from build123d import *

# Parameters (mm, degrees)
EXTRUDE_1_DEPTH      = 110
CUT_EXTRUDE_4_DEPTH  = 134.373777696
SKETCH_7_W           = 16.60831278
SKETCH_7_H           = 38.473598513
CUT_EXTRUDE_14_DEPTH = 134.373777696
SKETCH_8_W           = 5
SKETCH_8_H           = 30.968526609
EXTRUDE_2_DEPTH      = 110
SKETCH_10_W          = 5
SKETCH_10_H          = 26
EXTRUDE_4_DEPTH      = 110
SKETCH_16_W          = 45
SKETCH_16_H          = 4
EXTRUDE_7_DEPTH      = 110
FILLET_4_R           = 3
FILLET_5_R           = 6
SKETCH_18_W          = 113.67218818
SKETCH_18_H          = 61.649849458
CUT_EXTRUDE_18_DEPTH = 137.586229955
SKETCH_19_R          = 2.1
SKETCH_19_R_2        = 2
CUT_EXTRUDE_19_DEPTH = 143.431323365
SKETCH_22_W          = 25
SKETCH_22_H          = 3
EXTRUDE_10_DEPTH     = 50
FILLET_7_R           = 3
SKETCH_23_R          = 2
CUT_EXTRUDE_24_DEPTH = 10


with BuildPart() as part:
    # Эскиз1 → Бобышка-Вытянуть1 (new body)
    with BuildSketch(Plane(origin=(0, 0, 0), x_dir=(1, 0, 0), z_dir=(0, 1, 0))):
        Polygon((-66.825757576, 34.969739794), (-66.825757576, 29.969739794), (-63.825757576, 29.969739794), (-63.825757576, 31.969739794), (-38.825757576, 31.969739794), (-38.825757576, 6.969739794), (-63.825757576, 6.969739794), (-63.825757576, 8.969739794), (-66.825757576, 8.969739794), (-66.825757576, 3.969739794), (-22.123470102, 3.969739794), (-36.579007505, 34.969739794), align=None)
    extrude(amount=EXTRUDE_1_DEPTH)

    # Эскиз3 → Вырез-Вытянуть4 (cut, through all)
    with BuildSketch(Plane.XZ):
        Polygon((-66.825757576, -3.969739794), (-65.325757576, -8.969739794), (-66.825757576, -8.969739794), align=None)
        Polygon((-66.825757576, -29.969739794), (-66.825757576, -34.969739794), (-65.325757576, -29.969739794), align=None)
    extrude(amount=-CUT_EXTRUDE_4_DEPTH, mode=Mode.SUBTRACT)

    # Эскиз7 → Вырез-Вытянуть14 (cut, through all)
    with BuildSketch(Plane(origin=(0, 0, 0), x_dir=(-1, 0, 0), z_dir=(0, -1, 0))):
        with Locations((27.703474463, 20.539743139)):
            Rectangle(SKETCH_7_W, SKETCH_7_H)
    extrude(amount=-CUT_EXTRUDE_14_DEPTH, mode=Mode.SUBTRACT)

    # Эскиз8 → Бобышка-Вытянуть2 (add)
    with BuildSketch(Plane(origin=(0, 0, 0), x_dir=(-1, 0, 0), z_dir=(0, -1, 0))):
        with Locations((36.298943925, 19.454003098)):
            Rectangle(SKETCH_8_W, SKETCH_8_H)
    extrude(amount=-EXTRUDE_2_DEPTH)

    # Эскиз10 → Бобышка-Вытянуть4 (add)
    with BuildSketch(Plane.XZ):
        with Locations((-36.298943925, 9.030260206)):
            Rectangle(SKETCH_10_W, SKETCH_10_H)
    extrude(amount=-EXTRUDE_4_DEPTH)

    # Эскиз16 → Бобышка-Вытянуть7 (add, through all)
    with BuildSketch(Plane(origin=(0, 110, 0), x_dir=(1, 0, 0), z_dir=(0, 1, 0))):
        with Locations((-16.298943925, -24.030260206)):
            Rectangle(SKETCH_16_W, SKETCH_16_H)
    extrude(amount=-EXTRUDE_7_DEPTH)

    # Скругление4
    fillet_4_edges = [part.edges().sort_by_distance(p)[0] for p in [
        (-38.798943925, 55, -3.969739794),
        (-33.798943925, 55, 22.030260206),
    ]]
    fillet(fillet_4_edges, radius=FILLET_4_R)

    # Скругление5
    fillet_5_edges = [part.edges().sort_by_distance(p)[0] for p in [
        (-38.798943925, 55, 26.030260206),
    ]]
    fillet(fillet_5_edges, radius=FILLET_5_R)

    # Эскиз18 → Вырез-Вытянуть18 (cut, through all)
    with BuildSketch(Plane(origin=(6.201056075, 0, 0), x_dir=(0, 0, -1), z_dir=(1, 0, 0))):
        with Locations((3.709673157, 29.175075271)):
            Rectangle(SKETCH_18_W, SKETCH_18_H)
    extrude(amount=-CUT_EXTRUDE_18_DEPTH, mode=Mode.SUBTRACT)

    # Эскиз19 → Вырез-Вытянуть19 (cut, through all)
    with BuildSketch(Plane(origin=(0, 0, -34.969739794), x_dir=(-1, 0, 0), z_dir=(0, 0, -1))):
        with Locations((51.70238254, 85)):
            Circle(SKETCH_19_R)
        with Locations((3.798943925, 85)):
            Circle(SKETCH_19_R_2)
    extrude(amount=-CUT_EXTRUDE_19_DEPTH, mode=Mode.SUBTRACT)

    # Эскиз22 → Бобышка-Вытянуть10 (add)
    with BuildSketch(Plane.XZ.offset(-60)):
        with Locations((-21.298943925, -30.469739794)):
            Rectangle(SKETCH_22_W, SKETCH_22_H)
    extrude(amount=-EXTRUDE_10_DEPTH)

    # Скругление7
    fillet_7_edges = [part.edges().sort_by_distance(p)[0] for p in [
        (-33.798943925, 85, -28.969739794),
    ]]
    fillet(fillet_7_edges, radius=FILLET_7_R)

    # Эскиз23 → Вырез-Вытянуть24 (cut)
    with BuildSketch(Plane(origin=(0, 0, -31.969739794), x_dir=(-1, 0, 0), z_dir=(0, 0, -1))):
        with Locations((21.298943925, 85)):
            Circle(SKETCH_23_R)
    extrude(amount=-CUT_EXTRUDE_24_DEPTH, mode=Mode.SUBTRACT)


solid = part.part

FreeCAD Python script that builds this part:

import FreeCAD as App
import Part
import Sketcher
from FreeCAD import Vector
Q = App.Units.Quantity


def edges_at(feature, points):
    """Names of the edges that pass closest to the given points."""
    edges = feature.Shape.Edges
    near = lambda p: min(range(len(edges)), key=lambda i: edges[i].distToShape(Part.Vertex(*p))[0])
    return sorted({f"Edge{near(p) + 1}" for p in points})

doc = App.newDocument("Part")
body = doc.addObject("PartDesign::Body", "Body")

sketch1 = body.newObject("Sketcher::SketchObject", "Sketch")
sketch1.AttachmentSupport = (doc.getObject("XZ_Plane"), [""])
sketch1.MapMode = "FlatFace"
sketch1.addGeometry(Part.LineSegment(Vector(-66.8, -35, 0), Vector(-66.8, -30, 0)), False)
sketch1.addGeometry(Part.LineSegment(Vector(-66.8, -30, 0), Vector(-63.8, -30, 0)), False)
sketch1.addGeometry(Part.LineSegment(Vector(-63.8, -30, 0), Vector(-63.8, -32, 0)), False)
sketch1.addGeometry(Part.LineSegment(Vector(-63.8, -32, 0), Vector(-38.8, -32, 0)), False)
sketch1.addGeometry(Part.LineSegment(Vector(-38.8, -32, 0), Vector(-38.8, -7, 0)), False)
sketch1.addGeometry(Part.LineSegment(Vector(-38.8, -7, 0), Vector(-63.8, -7, 0)), False)
sketch1.addGeometry(Part.LineSegment(Vector(-63.8, -7, 0), Vector(-63.8, -9, 0)), False)
sketch1.addGeometry(Part.LineSegment(Vector(-63.8, -9, 0), Vector(-66.8, -9, 0)), False)
sketch1.addGeometry(Part.LineSegment(Vector(-66.8, -9, 0), Vector(-66.8, -4, 0)), False)
sketch1.addGeometry(Part.LineSegment(Vector(-66.8, -4, 0), Vector(-22.1, -4, 0)), False)
sketch1.addGeometry(Part.LineSegment(Vector(-22.1, -4, 0), Vector(-36.6, -35, 0)), False)
sketch1.addGeometry(Part.LineSegment(Vector(-36.6, -35, 0), Vector(-66.8, -35, 0)), False)
sketch1.addConstraint(Sketcher.Constraint("Coincident", 0, 2, 1, 1))
sketch1.addConstraint(Sketcher.Constraint("Coincident", 1, 2, 2, 1))
sketch1.addConstraint(Sketcher.Constraint("Coincident", 2, 2, 3, 1))
sketch1.addConstraint(Sketcher.Constraint("Coincident", 3, 2, 4, 1))
sketch1.addConstraint(Sketcher.Constraint("Coincident", 4, 2, 5, 1))
sketch1.addConstraint(Sketcher.Constraint("Coincident", 5, 2, 6, 1))
sketch1.addConstraint(Sketcher.Constraint("Coincident", 6, 2, 7, 1))
sketch1.addConstraint(Sketcher.Constraint("Coincident", 7, 2, 8, 1))
sketch1.addConstraint(Sketcher.Constraint("Coincident", 8, 2, 9, 1))
sketch1.addConstraint(Sketcher.Constraint("Coincident", 9, 2, 10, 1))
sketch1.addConstraint(Sketcher.Constraint("Coincident", 10, 2, 11, 1))
sketch1.addConstraint(Sketcher.Constraint("Coincident", 11, 2, 0, 1))
sketch1.addConstraint(Sketcher.Constraint("Vertical", 0))
sketch1.addConstraint(Sketcher.Constraint("Horizontal", 1))
sketch1.addConstraint(Sketcher.Constraint("Vertical", 2))
sketch1.addConstraint(Sketcher.Constraint("Horizontal", 3))
sketch1.addConstraint(Sketcher.Constraint("Vertical", 4))
sketch1.addConstraint(Sketcher.Constraint("Horizontal", 5))
sketch1.addConstraint(Sketcher.Constraint("Vertical", 6))
sketch1.addConstraint(Sketcher.Constraint("Horizontal", 7))
sketch1.addConstraint(Sketcher.Constraint("Vertical", 8))
sketch1.addConstraint(Sketcher.Constraint("Horizontal", 9))
sketch1.addConstraint(Sketcher.Constraint("Horizontal", 11))
sketch1.addConstraint(Sketcher.Constraint("Vertical", 2, 2, 5, 2))
sketch1.addConstraint(Sketcher.Constraint("Vertical", 0, 2, 7, 2))
sketch1.addConstraint(Sketcher.Constraint("Equal", 5, 4))
sketch1.addConstraint(Sketcher.Constraint("Equal", 2, 6))
sketch1.addConstraint(Sketcher.Constraint("Equal", 0, 8))
sketch1.addConstraint(Sketcher.Constraint("DistanceX", 1, 1, 1, 2, 3.0))
sketch1.addConstraint(Sketcher.Constraint("DistanceX", 3, 1, 3, 2, 25.0))
sketch1.addConstraint(Sketcher.Constraint("DistanceY", 0, 1, 0, 2, 5.0))
sketch1.addConstraint(Sketcher.Constraint("DistanceY", 2, 2, 2, 1, 2.0))
sketch1.addConstraint(Sketcher.Constraint("Angle", 10, Q("-115 deg")))
sketch1.addConstraint(Sketcher.Constraint("DistanceX", 11, 2, 11, 1, 30.24675))
sketch1.addConstraint(Sketcher.Constraint("DistanceY", 0, 2, -1, 1, 29.96974))
sketch1.addConstraint(Sketcher.Constraint("DistanceX", 9, 2, -1, 1, 22.12347))
pad1 = body.newObject("PartDesign::Pad", "Pad")
pad1.Profile = sketch1
pad1.Length = 110
pad1.Reversed = True

sketch2 = body.newObject("Sketcher::SketchObject", "Sketch001")
sketch2.AttachmentSupport = (doc.getObject("XZ_Plane"), [""])
sketch2.MapMode = "FlatFace"
sketch2.addGeometry(Part.LineSegment(Vector(-65.3, -9, 0), Vector(-66.8, -4, 0)), False)
sketch2.addGeometry(Part.LineSegment(Vector(-66.8, -4, 0), Vector(-66.8, -9, 0)), False)
sketch2.addGeometry(Part.LineSegment(Vector(-66.8, -9, 0), Vector(-65.3, -9, 0)), False)
sketch2.addGeometry(Part.LineSegment(Vector(-66.8, -30, 0), Vector(-66.8, -35, 0)), False)
sketch2.addGeometry(Part.LineSegment(Vector(-66.8, -35, 0), Vector(-65.3, -30, 0)), False)
sketch2.addGeometry(Part.LineSegment(Vector(-65.3, -30, 0), Vector(-66.8, -30, 0)), False)
sketch2.addConstraint(Sketcher.Constraint("Coincident", 0, 2, 1, 1))
sketch2.addConstraint(Sketcher.Constraint("Coincident", 1, 2, 2, 1))
sketch2.addConstraint(Sketcher.Constraint("Coincident", 2, 2, 0, 1))
sketch2.addConstraint(Sketcher.Constraint("Coincident", 3, 2, 4, 1))
sketch2.addConstraint(Sketcher.Constraint("Coincident", 4, 2, 5, 1))
sketch2.addConstraint(Sketcher.Constraint("Coincident", 5, 2, 3, 1))
sketch2.addConstraint(Sketcher.Constraint("Vertical", 1))
sketch2.addConstraint(Sketcher.Constraint("Horizontal", 2))
sketch2.addConstraint(Sketcher.Constraint("Vertical", 3))
sketch2.addConstraint(Sketcher.Constraint("Horizontal", 5))
sketch2.addConstraint(Sketcher.Constraint("Vertical", 1, 2, 3, 2))
sketch2.addConstraint(Sketcher.Constraint("Vertical", 2, 2, 4, 2))
sketch2.addConstraint(Sketcher.Constraint("Equal", 1, 3))
sketch2.addConstraint(Sketcher.Constraint("DistanceY", 1, 2, 1, 1, 5.0))
sketch2.addConstraint(Sketcher.Constraint("DistanceX", 2, 1, 2, 2, 1.5))
sketch2.addConstraint(Sketcher.Constraint("DistanceY", 3, 2, 1, 2, 26.0))
sketch2.addConstraint(Sketcher.Constraint("DistanceY", 0, 2, -1, 1, 3.96974))
sketch2.addConstraint(Sketcher.Constraint("DistanceX", 0, 2, -1, 1, 66.825758))
pocket1 = body.newObject("PartDesign::Pocket", "Pocket")
pocket1.Profile = sketch2
pocket1.Type = "ThroughAll"

sketch3 = body.newObject("Sketcher::SketchObject", "Sketch002")
sketch3.AttachmentSupport = (doc.getObject("XZ_Plane"), [""])
sketch3.MapMode = "FlatFace"
sketch3.addGeometry(Part.LineSegment(Vector(-19, -40, 0), Vector(-19, -1, 0)), False)
sketch3.addGeometry(Part.LineSegment(Vector(-19, -1, 0), Vector(-36, -1, 0)), False)
sketch3.addGeometry(Part.LineSegment(Vector(-36, -1, 0), Vector(-36, -40, 0)), False)
sketch3.addGeometry(Part.LineSegment(Vector(-36, -40, 0), Vector(-19, -40, 0)), False)
sketch3.addConstraint(Sketcher.Constraint("Coincident", 0, 2, 1, 1))
sketch3.addConstraint(Sketcher.Constraint("Coincident", 1, 2, 2, 1))
sketch3.addConstraint(Sketcher.Constraint("Coincident", 2, 2, 3, 1))
sketch3.addConstraint(Sketcher.Constraint("Coincident", 3, 2, 0, 1))
sketch3.addConstraint(Sketcher.Constraint("Vertical", 0))
sketch3.addConstraint(Sketcher.Constraint("Horizontal", 1))
sketch3.addConstraint(Sketcher.Constraint("Vertical", 2))
sketch3.addConstraint(Sketcher.Constraint("Horizontal", 3))
sketch3.addConstraint(Sketcher.Constraint("DistanceY", 0, 1, 0, 2, 38.473599))
sketch3.addConstraint(Sketcher.Constraint("DistanceX", 1, 2, 1, 1, 16.608313))
sketch3.addConstraint(Sketcher.Constraint("DistanceX", 0, 2, -1, 1, 19.399318))
sketch3.addConstraint(Sketcher.Constraint("DistanceY", 0, 2, -1, 1, 1.302944))
pocket2 = body.newObject("PartDesign::Pocket", "Pocket001")
pocket2.Profile = sketch3
pocket2.Type = "ThroughAll"

sketch4 = body.newObject("Sketcher::SketchObject", "Sketch003")
sketch4.AttachmentSupport = (doc.getObject("XZ_Plane"), [""])
sketch4.MapMode = "FlatFace"
sketch4.addGeometry(Part.LineSegment(Vector(-34, -35, 0), Vector(-34, -4, 0)), False)
sketch4.addGeometry(Part.LineSegment(Vector(-34, -4, 0), Vector(-39, -4, 0)), False)
sketch4.addGeometry(Part.LineSegment(Vector(-39, -4, 0), Vector(-39, -35, 0)), False)
sketch4.addGeometry(Part.LineSegment(Vector(-39, -35, 0), Vector(-34, -35, 0)), False)
sketch4.addConstraint(Sketcher.Constraint("Coincident", 0, 2, 1, 1))
sketch4.addConstraint(Sketcher.Constraint("Coincident", 1, 2, 2, 1))
sketch4.addConstraint(Sketcher.Constraint("Coincident", 2, 2, 3, 1))
sketch4.addConstraint(Sketcher.Constraint("Coincident", 3, 2, 0, 1))
sketch4.addConstraint(Sketcher.Constraint("Vertical", 0))
sketch4.addConstraint(Sketcher.Constraint("Horizontal", 1))
sketch4.addConstraint(Sketcher.Constraint("Vertical", 2))
sketch4.addConstraint(Sketcher.Constraint("Horizontal", 3))
sketch4.addConstraint(Sketcher.Constraint("DistanceX", 1, 2, 1, 1, 5.0))
sketch4.addConstraint(Sketcher.Constraint("DistanceY", 0, 1, 0, 2, 30.968527))
sketch4.addConstraint(Sketcher.Constraint("DistanceY", 0, 2, -1, 1, 3.96974))
sketch4.addConstraint(Sketcher.Constraint("DistanceX", 0, 2, -1, 1, 33.798944))
pad2 = body.newObject("PartDesign::Pad", "Pad001")
pad2.Profile = sketch4
pad2.Length = 110
pad2.Reversed = True

sketch5 = body.newObject("Sketcher::SketchObject", "Sketch004")
sketch5.AttachmentSupport = (doc.getObject("XZ_Plane"), [""])
sketch5.MapMode = "FlatFace"
sketch5.addGeometry(Part.LineSegment(Vector(-39, 22, 0), Vector(-39, -4, 0)), False)
sketch5.addGeometry(Part.LineSegment(Vector(-39, -4, 0), Vector(-34, -4, 0)), False)
sketch5.addGeometry(Part.LineSegment(Vector(-34, -4, 0), Vector(-34, 22, 0)), False)
sketch5.addGeometry(Part.LineSegment(Vector(-34, 22, 0), Vector(-39, 22, 0)), False)
sketch5.addConstraint(Sketcher.Constraint("Coincident", 0, 2, 1, 1))
sketch5.addConstraint(Sketcher.Constraint("Coincident", 1, 2, 2, 1))
sketch5.addConstraint(Sketcher.Constraint("Coincident", 2, 2, 3, 1))
sketch5.addConstraint(Sketcher.Constraint("Coincident", 3, 2, 0, 1))
sketch5.addConstraint(Sketcher.Constraint("Vertical", 0))
sketch5.addConstraint(Sketcher.Constraint("Horizontal", 1))
sketch5.addConstraint(Sketcher.Constraint("Vertical", 2))
sketch5.addConstraint(Sketcher.Constraint("Horizontal", 3))
sketch5.addConstraint(Sketcher.Constraint("DistanceX", 1, 1, 1, 2, 5.0))
sketch5.addConstraint(Sketcher.Constraint("DistanceY", 0, 2, 0, 1, 26.0))
sketch5.addConstraint(Sketcher.Constraint("DistanceY", 0, 2, -1, 1, 3.96974))
sketch5.addConstraint(Sketcher.Constraint("DistanceX", 0, 2, -1, 1, 38.798944))
pad3 = body.newObject("PartDesign::Pad", "Pad002")
pad3.Profile = sketch5
pad3.Length = 110
pad3.Reversed = True

sketch6 = body.newObject("Sketcher::SketchObject", "Sketch005")
sketch6.AttachmentSupport = (doc.getObject("XZ_Plane"), [""])
sketch6.MapMode = "FlatFace"
sketch6.AttachmentOffset = App.Placement(Vector(0, 0, -110), App.Rotation())
sketch6.addGeometry(Part.LineSegment(Vector(-38.8, 22, 0), Vector(-38.8, 26, 0)), False)
sketch6.addGeometry(Part.LineSegment(Vector(-38.8, 26, 0), Vector(6.2, 26, 0)), False)
sketch6.addGeometry(Part.LineSegment(Vector(6.2, 26, 0), Vector(6.2, 22, 0)), False)
sketch6.addGeometry(Part.LineSegment(Vector(6.2, 22, 0), Vector(-38.8, 22, 0)), False)
sketch6.addConstraint(Sketcher.Constraint("Coincident", 0, 2, 1, 1))
sketch6.addConstraint(Sketcher.Constraint("Coincident", 1, 2, 2, 1))
sketch6.addConstraint(Sketcher.Constraint("Coincident", 2, 2, 3, 1))
sketch6.addConstraint(Sketcher.Constraint("Coincident", 3, 2, 0, 1))
sketch6.addConstraint(Sketcher.Constraint("Vertical", 0))
sketch6.addConstraint(Sketcher.Constraint("Horizontal", 1))
sketch6.addConstraint(Sketcher.Constraint("Vertical", 2))
sketch6.addConstraint(Sketcher.Constraint("Horizontal", 3))
sketch6.addConstraint(Sketcher.Constraint("DistanceX", 1, 1, 1, 2, 45.0))
sketch6.addConstraint(Sketcher.Constraint("DistanceY", 0, 1, 0, 2, 4.0))
sketch6.addConstraint(Sketcher.Constraint("DistanceY", -1, 1, 0, 2, 26.03026))
sketch6.addConstraint(Sketcher.Constraint("DistanceX", 0, 2, -1, 1, 38.798944))
pad4 = body.newObject("PartDesign::Pad", "Pad003")
pad4.Profile = sketch6
pad4.Length = 110
doc.recompute()

fillet = body.newObject("PartDesign::Fillet", "Fillet")
fillet.Base = (pad4, edges_at(pad4, [(-38.799, 55, -3.97), (-33.799, 55, 22.03)]))
fillet.Radius = 3
doc.recompute()

fillet2 = body.newObject("PartDesign::Fillet", "Fillet001")
fillet2.Base = (fillet, edges_at(fillet, [(-38.799, 55, 26.03)]))
fillet2.Radius = 6

sketch7 = body.newObject("Sketcher::SketchObject", "Sketch006")
sketch7.AttachmentSupport = (doc.getObject("YZ_Plane"), [""])
sketch7.MapMode = "FlatFace"
sketch7.AttachmentOffset = App.Placement(Vector(0, 0, 6.201056), App.Rotation())
sketch7.addGeometry(Part.LineSegment(Vector(60, 53, 0), Vector(-2, 53, 0)), False)
sketch7.addGeometry(Part.LineSegment(Vector(-2, 53, 0), Vector(-2, -61, 0)), False)
sketch7.addGeometry(Part.LineSegment(Vector(-2, -61, 0), Vector(60, -61, 0)), False)
sketch7.addGeometry(Part.LineSegment(Vector(60, -61, 0), Vector(60, 53, 0)), False)
sketch7.addConstraint(Sketcher.Constraint("Coincident", 0, 2, 1, 1))
sketch7.addConstraint(Sketcher.Constraint("Coincident", 1, 2, 2, 1))
sketch7.addConstraint(Sketcher.Constraint("Coincident", 2, 2, 3, 1))
sketch7.addConstraint(Sketcher.Constraint("Coincident", 3, 2, 0, 1))
sketch7.addConstraint(Sketcher.Constraint("Horizontal", 0))
sketch7.addConstraint(Sketcher.Constraint("Vertical", 1))
sketch7.addConstraint(Sketcher.Constraint("Horizontal", 2))
sketch7.addConstraint(Sketcher.Constraint("Vertical", 3))
sketch7.addConstraint(Sketcher.Constraint("DistanceX", -1, 1, 2, 2, 60.0))
sketch7.addConstraint(Sketcher.Constraint("DistanceX", 0, 2, 0, 1, 61.649849))
sketch7.addConstraint(Sketcher.Constraint("DistanceY", 1, 2, 1, 1, 113.672188))
sketch7.addConstraint(Sketcher.Constraint("DistanceY", -1, 1, 0, 2, 53.126421))
pocket3 = body.newObject("PartDesign::Pocket", "Pocket002")
pocket3.Profile = sketch7
pocket3.Type = "ThroughAll"

sketch8 = body.newObject("Sketcher::SketchObject", "Sketch007")
sketch8.AttachmentSupport = (doc.getObject("XY_Plane"), [""])
sketch8.MapMode = "FlatFace"
sketch8.AttachmentOffset = App.Placement(Vector(0, 0, -34.96974), App.Rotation())
sketch8.addGeometry(Part.Circle(Vector(-51.7, 85, 0), Vector(0, 0, 1), 2.1), False)
sketch8.addGeometry(Part.Circle(Vector(-3.8, 85, 0), Vector(0, 0, 1), 2), False)
sketch8.addConstraint(Sketcher.Constraint("Horizontal", 0, 3, 1, 3))
sketch8.addConstraint(Sketcher.Constraint("Diameter", 1, 4.0))
sketch8.addConstraint(Sketcher.Constraint("Diameter", 0, 4.2))
sketch8.addConstraint(Sketcher.Constraint("DistanceY", -1, 1, 0, 3, 85.0))
sketch8.addConstraint(Sketcher.Constraint("DistanceX", 0, 3, 1, 3, 47.903439))
sketch8.addConstraint(Sketcher.Constraint("DistanceX", 0, 3, -1, 1, 51.702383))
pocket4 = body.newObject("PartDesign::Pocket", "Pocket003")
pocket4.Profile = sketch8
pocket4.Type = "ThroughAll"
pocket4.Reversed = True

sketch9 = body.newObject("Sketcher::SketchObject", "Sketch008")
sketch9.AttachmentSupport = (doc.getObject("XZ_Plane"), [""])
sketch9.MapMode = "FlatFace"
sketch9.AttachmentOffset = App.Placement(Vector(0, 0, -60), App.Rotation())
sketch9.addGeometry(Part.LineSegment(Vector(-33.8, -29, 0), Vector(-33.8, -32, 0)), False)
sketch9.addGeometry(Part.LineSegment(Vector(-33.8, -32, 0), Vector(-8.8, -32, 0)), False)
sketch9.addGeometry(Part.LineSegment(Vector(-8.8, -32, 0), Vector(-8.8, -29, 0)), False)
sketch9.addGeometry(Part.LineSegment(Vector(-8.8, -29, 0), Vector(-33.8, -29, 0)), False)
sketch9.addConstraint(Sketcher.Constraint("Coincident", 0, 2, 1, 1))
sketch9.addConstraint(Sketcher.Constraint("Coincident", 1, 2, 2, 1))
sketch9.addConstraint(Sketcher.Constraint("Coincident", 2, 2, 3, 1))
sketch9.addConstraint(Sketcher.Constraint("Coincident", 3, 2, 0, 1))
sketch9.addConstraint(Sketcher.Constraint("Vertical", 0))
sketch9.addConstraint(Sketcher.Constraint("Horizontal", 1))
sketch9.addConstraint(Sketcher.Constraint("Vertical", 2))
sketch9.addConstraint(Sketcher.Constraint("Horizontal", 3))
sketch9.addConstraint(Sketcher.Constraint("DistanceX", 1, 1, 1, 2, 25.0))
sketch9.addConstraint(Sketcher.Constraint("DistanceY", 0, 2, 0, 1, 3.0))
sketch9.addConstraint(Sketcher.Constraint("DistanceY", 0, 2, -1, 1, 31.96974))
sketch9.addConstraint(Sketcher.Constraint("DistanceX", 0, 2, -1, 1, 33.798944))
pad5 = body.newObject("PartDesign::Pad", "Pad004")
pad5.Profile = sketch9
pad5.Length = 50
pad5.Reversed = True
doc.recompute()

fillet3 = body.newObject("PartDesign::Fillet", "Fillet002")
fillet3.Base = (pad5, edges_at(pad5, [(-33.799, 85, -28.97)]))
fillet3.Radius = 3

sketch10 = body.newObject("Sketcher::SketchObject", "Sketch009")
sketch10.AttachmentSupport = (doc.getObject("XY_Plane"), [""])
sketch10.MapMode = "FlatFace"
sketch10.AttachmentOffset = App.Placement(Vector(0, 0, -31.96974), App.Rotation())
sketch10.addGeometry(Part.Circle(Vector(-21.3, 85, 0), Vector(0, 0, 1), 2), False)
sketch10.addConstraint(Sketcher.Constraint("Diameter", 0, 4.0))
sketch10.addConstraint(Sketcher.Constraint("DistanceY", -1, 1, 0, 3, 85.0))
sketch10.addConstraint(Sketcher.Constraint("DistanceX", 0, 3, -1, 1, 21.298944))
pocket5 = body.newObject("PartDesign::Pocket", "Pocket004")
pocket5.Profile = sketch10
pocket5.Length = 10
pocket5.Reversed = True

doc.recompute()
